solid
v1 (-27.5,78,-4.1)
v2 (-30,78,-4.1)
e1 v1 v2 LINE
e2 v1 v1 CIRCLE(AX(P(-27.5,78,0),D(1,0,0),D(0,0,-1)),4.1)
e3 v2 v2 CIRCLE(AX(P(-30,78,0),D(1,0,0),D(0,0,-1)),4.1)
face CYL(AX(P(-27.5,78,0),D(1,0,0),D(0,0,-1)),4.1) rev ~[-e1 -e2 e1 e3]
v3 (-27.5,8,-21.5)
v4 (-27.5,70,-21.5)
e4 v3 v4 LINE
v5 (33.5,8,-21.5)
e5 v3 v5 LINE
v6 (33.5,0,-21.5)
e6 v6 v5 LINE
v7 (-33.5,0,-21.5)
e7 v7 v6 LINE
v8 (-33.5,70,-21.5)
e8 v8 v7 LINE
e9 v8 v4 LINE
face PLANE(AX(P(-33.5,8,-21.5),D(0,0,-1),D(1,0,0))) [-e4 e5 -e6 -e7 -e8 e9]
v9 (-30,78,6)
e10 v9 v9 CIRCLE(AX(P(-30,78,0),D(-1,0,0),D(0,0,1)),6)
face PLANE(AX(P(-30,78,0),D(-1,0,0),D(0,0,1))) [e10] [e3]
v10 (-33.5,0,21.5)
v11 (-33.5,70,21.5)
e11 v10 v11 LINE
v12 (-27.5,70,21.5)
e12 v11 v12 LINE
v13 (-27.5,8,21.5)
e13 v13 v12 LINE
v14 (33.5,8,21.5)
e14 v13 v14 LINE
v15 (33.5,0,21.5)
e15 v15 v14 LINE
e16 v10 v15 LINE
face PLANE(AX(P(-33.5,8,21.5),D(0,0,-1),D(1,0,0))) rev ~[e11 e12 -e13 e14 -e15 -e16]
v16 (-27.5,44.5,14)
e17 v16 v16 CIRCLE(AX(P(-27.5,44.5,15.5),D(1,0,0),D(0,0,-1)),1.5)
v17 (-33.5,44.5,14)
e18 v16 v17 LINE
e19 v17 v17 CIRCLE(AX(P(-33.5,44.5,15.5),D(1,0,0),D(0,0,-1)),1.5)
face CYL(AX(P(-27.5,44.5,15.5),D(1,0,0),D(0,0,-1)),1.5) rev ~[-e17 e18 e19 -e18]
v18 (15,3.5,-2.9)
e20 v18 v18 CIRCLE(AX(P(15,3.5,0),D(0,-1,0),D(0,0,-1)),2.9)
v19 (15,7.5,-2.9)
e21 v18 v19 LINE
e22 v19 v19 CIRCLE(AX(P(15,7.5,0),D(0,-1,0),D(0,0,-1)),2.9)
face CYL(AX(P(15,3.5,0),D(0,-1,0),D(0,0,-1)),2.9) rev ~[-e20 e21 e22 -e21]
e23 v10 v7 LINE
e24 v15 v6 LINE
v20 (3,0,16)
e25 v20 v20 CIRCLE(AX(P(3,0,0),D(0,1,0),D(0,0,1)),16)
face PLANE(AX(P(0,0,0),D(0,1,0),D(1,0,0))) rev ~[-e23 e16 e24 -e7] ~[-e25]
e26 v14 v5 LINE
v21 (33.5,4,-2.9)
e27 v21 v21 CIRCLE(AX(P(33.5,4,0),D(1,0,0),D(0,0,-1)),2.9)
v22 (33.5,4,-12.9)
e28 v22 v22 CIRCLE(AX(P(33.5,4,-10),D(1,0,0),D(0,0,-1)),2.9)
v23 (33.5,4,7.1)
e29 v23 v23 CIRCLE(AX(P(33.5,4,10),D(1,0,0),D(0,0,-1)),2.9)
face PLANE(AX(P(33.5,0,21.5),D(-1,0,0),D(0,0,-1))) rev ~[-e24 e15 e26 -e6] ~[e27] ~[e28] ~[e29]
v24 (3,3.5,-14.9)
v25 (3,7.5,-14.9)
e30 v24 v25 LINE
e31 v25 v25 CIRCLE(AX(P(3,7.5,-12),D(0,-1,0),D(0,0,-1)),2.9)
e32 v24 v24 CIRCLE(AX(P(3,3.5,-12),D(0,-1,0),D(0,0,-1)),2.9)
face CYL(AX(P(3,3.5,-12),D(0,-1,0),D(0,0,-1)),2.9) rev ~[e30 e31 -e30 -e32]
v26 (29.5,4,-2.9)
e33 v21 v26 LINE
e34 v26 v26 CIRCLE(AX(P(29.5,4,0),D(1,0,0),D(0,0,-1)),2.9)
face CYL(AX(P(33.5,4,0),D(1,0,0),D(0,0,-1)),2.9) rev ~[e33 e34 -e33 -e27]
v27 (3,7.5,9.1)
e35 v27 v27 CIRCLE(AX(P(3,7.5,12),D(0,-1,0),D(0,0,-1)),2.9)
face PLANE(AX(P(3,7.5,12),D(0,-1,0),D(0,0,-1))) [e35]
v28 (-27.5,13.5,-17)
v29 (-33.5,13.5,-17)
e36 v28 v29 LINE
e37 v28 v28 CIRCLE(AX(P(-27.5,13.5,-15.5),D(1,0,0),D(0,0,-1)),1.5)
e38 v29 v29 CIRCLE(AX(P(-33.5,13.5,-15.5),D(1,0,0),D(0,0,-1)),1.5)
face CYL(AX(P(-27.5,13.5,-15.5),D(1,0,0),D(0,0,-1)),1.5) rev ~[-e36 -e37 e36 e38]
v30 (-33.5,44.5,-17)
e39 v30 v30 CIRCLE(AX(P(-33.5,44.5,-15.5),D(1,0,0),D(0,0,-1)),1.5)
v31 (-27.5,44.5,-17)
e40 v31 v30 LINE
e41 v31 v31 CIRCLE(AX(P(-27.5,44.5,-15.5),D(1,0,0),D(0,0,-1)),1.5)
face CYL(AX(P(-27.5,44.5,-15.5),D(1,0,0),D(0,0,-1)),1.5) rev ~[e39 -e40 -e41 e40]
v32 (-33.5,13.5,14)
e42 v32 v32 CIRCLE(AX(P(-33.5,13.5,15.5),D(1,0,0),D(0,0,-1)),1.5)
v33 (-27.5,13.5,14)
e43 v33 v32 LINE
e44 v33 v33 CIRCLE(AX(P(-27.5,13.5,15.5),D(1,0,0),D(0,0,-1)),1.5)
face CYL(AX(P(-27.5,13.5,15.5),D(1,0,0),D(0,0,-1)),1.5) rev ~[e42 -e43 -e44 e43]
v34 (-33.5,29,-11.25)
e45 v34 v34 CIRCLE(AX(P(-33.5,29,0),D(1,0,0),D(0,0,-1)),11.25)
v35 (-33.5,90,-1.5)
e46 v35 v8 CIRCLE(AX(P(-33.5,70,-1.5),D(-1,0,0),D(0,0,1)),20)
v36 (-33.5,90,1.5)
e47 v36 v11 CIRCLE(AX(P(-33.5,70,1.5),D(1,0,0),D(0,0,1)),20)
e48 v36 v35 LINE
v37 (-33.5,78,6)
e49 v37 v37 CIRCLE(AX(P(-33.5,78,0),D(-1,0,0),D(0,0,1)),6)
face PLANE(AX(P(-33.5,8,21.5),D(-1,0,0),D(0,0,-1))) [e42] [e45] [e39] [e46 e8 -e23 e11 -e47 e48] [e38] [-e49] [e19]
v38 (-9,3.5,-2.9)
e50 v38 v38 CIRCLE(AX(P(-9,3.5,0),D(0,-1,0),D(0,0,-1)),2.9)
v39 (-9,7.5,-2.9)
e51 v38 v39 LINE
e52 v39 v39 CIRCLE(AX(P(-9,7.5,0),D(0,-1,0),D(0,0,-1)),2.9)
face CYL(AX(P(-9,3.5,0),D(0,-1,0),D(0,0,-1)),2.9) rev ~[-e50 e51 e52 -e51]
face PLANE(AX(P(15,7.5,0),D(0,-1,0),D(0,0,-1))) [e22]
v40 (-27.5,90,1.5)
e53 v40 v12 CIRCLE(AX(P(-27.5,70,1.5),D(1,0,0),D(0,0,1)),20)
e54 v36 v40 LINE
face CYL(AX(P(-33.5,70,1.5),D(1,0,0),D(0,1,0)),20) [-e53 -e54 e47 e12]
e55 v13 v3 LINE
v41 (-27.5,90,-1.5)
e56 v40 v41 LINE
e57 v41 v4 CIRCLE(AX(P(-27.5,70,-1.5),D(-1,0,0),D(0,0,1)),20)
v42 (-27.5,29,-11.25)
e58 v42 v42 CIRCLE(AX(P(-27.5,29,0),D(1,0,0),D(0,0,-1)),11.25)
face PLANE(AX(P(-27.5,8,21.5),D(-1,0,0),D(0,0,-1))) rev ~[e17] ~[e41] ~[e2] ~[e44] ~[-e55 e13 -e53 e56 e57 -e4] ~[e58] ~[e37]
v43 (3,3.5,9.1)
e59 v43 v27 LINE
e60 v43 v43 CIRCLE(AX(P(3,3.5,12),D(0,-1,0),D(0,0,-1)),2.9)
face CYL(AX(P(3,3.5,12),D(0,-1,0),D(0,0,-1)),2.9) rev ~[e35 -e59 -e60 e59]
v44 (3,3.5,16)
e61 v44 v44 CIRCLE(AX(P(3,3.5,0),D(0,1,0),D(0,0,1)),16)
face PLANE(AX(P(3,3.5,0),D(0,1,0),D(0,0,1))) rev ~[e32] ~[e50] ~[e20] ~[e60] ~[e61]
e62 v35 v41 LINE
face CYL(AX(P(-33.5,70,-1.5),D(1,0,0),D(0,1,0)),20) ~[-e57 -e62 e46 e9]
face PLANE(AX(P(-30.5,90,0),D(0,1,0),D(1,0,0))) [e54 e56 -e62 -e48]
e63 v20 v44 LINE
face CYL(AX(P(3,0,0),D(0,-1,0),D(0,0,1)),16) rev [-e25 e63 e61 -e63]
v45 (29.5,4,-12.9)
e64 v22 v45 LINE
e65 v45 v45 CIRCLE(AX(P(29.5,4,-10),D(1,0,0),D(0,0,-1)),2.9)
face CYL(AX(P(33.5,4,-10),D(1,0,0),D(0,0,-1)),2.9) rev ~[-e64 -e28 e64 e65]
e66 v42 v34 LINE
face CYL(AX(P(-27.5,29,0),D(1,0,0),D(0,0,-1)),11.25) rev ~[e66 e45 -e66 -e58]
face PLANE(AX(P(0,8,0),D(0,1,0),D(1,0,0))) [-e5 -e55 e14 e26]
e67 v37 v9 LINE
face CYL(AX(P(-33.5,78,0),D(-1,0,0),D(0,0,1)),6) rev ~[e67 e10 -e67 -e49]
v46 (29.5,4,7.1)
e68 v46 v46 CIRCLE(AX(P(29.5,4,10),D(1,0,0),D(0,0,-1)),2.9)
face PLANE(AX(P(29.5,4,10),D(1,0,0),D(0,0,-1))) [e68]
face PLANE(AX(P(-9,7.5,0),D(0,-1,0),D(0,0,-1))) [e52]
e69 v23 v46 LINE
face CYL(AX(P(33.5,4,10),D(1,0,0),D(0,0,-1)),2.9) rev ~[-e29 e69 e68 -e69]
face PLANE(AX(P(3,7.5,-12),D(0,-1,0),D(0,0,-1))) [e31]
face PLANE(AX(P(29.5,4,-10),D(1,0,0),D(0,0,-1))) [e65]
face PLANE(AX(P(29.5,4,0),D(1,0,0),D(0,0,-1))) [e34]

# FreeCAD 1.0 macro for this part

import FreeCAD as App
import Part
import Sketcher

V = App.Vector


def edges_at(feature, points):
    """Names of the edges that pass closest to the given points."""
    edges = feature.Shape.Edges
    near = lambda p: min(range(len(edges)), key=lambda i: edges[i].distToShape(Part.Vertex(*p))[0])
    return sorted({f"Edge{near(p) + 1}" for p in points})


def add_polygon(sketch, points):
    """Adds a closed chain of lines whose ends are joined by coincident constraints."""
    first, n = sketch.GeometryCount, len(points)
    for a, b in zip(points, points[1:] + points[:1]):
        sketch.addGeometry(Part.LineSegment(App.Vector(*a, 0), App.Vector(*b, 0)), False)
    for i in range(n):
        sketch.addConstraint(Sketcher.Constraint("Coincident", first + i, 2, first + (i + 1) % n, 1))

doc = App.newDocument("Part")
params = doc.addObject("Spreadsheet::Sheet", "Params")
for row, (alias, value) in enumerate([
    ("sketch1_width", "67 mm"),
    ("sketch1_height", "43 mm"),
    ("pad1_length", "8 mm"),
    ("sketch2_width", "6 mm"),
    ("sketch2_height", "43 mm"),
    ("pad2_length", "82 mm"),
    ("sketch3_diameter", "22.5 mm"),
    ("sketch4_diameter", "3 mm"),
    ("sketch5_diameter", "3 mm"),
    ("sketch6_diameter", "3 mm"),
    ("sketch7_diameter", "3 mm"),
    ("sketch8_diameter", "8.2 mm"),
    ("fillet_radius", "20 mm"),
    ("sketch9_diameter", "5.8 mm"),
    ("pocket7_length", "4 mm"),
    ("sketch10_diameter", "12 mm"),
    ("pocket8_length", "3.5 mm"),
    ("sketch11_diameter", "32 mm"),
    ("pocket9_length", "3.5 mm"),
    ("sketch12_diameter", "5.8 mm"),
    ("pocket10_length", "4 mm"),
], start=1):
    params.set(f"A{row}", alias)
    params.set(f"B{row}", "=" + value)
    params.setAlias(f"B{row}", alias)

body = doc.addObject("PartDesign::Body", "Body")

sketch1 = doc.addObject("Sketcher::SketchObject", "Sketch")
body.addObject(sketch1)
sketch1.AttachmentSupport = (doc.XZ_Plane, [""])
sketch1.MapMode = "FlatFace"
add_polygon(sketch1, [(-34, -22), (-34, 22), (34, 22), (34, -22)])
sketch1.addConstraint(Sketcher.Constraint("Vertical", 0))
sketch1.addConstraint(Sketcher.Constraint("Horizontal", 1))
sketch1.addConstraint(Sketcher.Constraint("Vertical", 2))
sketch1.addConstraint(Sketcher.Constraint("Horizontal", 3))
sketch1.addConstraint(Sketcher.Constraint("Symmetric", 0, 2, 2, 2, -1, 1))
sketch1.addConstraint(Sketcher.Constraint("DistanceX", 1, 1, 1, 2, 67.0))
sketch1.addConstraint(Sketcher.Constraint("DistanceY", 0, 1, 0, 2, 43.0))
sketch1.setExpression("Constraints[9]", "Params.sketch1_width")
sketch1.setExpression("Constraints[10]", "Params.sketch1_height")
pad1 = doc.addObject("PartDesign::Pad", "Pad")
body.addObject(pad1)
pad1.Profile = sketch1
pad1.setExpression("Length", "Params.pad1_length")
pad1.Reversed = True

sketch2 = doc.addObject("Sketcher::SketchObject", "Sketch001")
body.addObject(sketch2)
sketch2.AttachmentSupport = (doc.XZ_Plane, [""])
sketch2.MapMode = "FlatFace"
sketch2.AttachmentOffset = App.Placement(V(0, 0, -8), App.Rotation())
add_polygon(sketch2, [(-34, -22), (-34, 22), (-28, 22), (-28, -22)])
sketch2.addConstraint(Sketcher.Constraint("Vertical", 0))
sketch2.addConstraint(Sketcher.Constraint("Horizontal", 1))
sketch2.addConstraint(Sketcher.Constraint("Vertical", 2))
sketch2.addConstraint(Sketcher.Constraint("Horizontal", 3))
sketch2.addConstraint(Sketcher.Constraint("DistanceX", 1, 1, 1, 2, 6.0))
sketch2.addConstraint(Sketcher.Constraint("DistanceY", 0, 1, 0, 2, 43.0))
sketch2.addConstraint(Sketcher.Constraint("DistanceX", 0, 2, -1, 1, 33.5))
sketch2.addConstraint(Sketcher.Constraint("DistanceY", -1, 1, 0, 2, 21.5))
sketch2.setExpression("Constraints[8]", "Params.sketch2_width")
sketch2.setExpression("Constraints[9]", "Params.sketch2_height")
pad2 = doc.addObject("PartDesign::Pad", "Pad001")
body.addObject(pad2)
pad2.Profile = sketch2
pad2.setExpression("Length", "Params.pad2_length")
pad2.Reversed = True

sketch3 = doc.addObject("Sketcher::SketchObject", "Sketch002")
body.addObject(sketch3)
sketch3.AttachmentSupport = (doc.YZ_Plane, [""])
sketch3.MapMode = "FlatFace"
sketch3.AttachmentOffset = App.Placement(V(0, 0, -27.5), App.Rotation())
sketch3.addGeometry(Part.Circle(V(29, 0, 0), V(0, 0, 1), 11), False)
sketch3.addConstraint(Sketcher.Constraint("PointOnObject", 0, 3, -1))
sketch3.addConstraint(Sketcher.Constraint("Diameter", 0, 22.5))
sketch3.addConstraint(Sketcher.Constraint("DistanceX", -1, 1, 0, 3, 29.0))
sketch3.setExpression("Constraints[1]", "Params.sketch3_diameter")
pocket1 = doc.addObject("PartDesign::Pocket", "Pocket")
body.addObject(pocket1)
pocket1.Profile = sketch3
pocket1.Type = "UpToFirst"

sketch4 = doc.addObject("Sketcher::SketchObject", "Sketch003")
body.addObject(sketch4)
sketch4.AttachmentSupport = (doc.YZ_Plane, [""])
sketch4.MapMode = "FlatFace"
sketch4.AttachmentOffset = App.Placement(V(0, 0, -27.5), App.Rotation())
sketch4.addGeometry(Part.Circle(V(44.5, 15.5, 0), V(0, 0, 1), 1.5), False)
sketch4.addConstraint(Sketcher.Constraint("Diameter", 0, 3.0))
sketch4.addConstraint(Sketcher.Constraint("DistanceX", -1, 1, 0, 3, 44.5))
sketch4.addConstraint(Sketcher.Constraint("DistanceY", -1, 1, 0, 3, 15.5))
sketch4.setExpression("Constraints[0]", "Params.sketch4_diameter")
pocket2 = doc.addObject("PartDesign::Pocket", "Pocket001")
body.addObject(pocket2)
pocket2.Profile = sketch4
pocket2.Type = "UpToFirst"

sketch5 = doc.addObject("Sketcher::SketchObject", "Sketch004")
body.addObject(sketch5)
sketch5.AttachmentSupport = (doc.YZ_Plane, [""])
sketch5.MapMode = "FlatFace"
sketch5.AttachmentOffset = App.Placement(V(0, 0, -27.5), App.Rotation())
sketch5.addGeometry(Part.Circle(V(44.5, -15.5, 0), V(0, 0, 1), 1.5), False)
sketch5.addConstraint(Sketcher.Constraint("Diameter", 0, 3.0))
sketch5.addConstraint(Sketcher.Constraint("DistanceX", -1, 1, 0, 3, 44.5))
sketch5.addConstraint(Sketcher.Constraint("DistanceY", 0, 3, -1, 1, 15.5))
sketch5.setExpression("Constraints[0]", "Params.sketch5_diameter")
pocket3 = doc.addObject("PartDesign::Pocket", "Pocket002")
body.addObject(pocket3)
pocket3.Profile = sketch5
pocket3.Type = "UpToFirst"

sketch6 = doc.addObject("Sketcher::SketchObject", "Sketch005")
body.addObject(sketch6)
sketch6.AttachmentSupport = (doc.YZ_Plane, [""])
sketch6.MapMode = "FlatFace"
sketch6.AttachmentOffset = App.Placement(V(0, 0, -27.5), App.Rotation())
sketch6.addGeometry(Part.Circle(V(13.5, -15.5, 0), V(0, 0, 1), 1.5), False)
sketch6.addConstraint(Sketcher.Constraint("Diameter", 0, 3.0))
sketch6.addConstraint(Sketcher.Constraint("DistanceX", -1, 1, 0, 3, 13.5))
sketch6.addConstraint(Sketcher.Constraint("DistanceY", 0, 3, -1, 1, 15.5))
sketch6.setExpression("Constraints[0]", "Params.sketch6_diameter")
pocket4 = doc.addObject("PartDesign::Pocket", "Pocket003")
body.addObject(pocket4)
pocket4.Profile = sketch6
pocket4.Type = "UpToFirst"

sketch7 = doc.addObject("Sketcher::SketchObject", "Sketch006")
body.addObject(sketch7)
sketch7.AttachmentSupport = (doc.YZ_Plane, [""])
sketch7.MapMode = "FlatFace"
sketch7.AttachmentOffset = App.Placement(V(0, 0, -27.5), App.Rotation())
sketch7.addGeometry(Part.Circle(V(13.5, 15.5, 0), V(0, 0, 1), 1.5), False)
sketch7.addConstraint(Sketcher.Constraint("Diameter", 0, 3.0))
sketch7.addConstraint(Sketcher.Constraint("DistanceX", -1, 1, 0, 3, 13.5))
sketch7.addConstraint(Sketcher.Constraint("DistanceY", -1, 1, 0, 3, 15.5))
sketch7.setExpression("Constraints[0]", "Params.sketch7_diameter")
pocket5 = doc.addObject("PartDesign::Pocket", "Pocket004")
body.addObject(pocket5)
pocket5.Profile = sketch7
pocket5.Type = "UpToFirst"

sketch8 = doc.addObject("Sketcher::SketchObject", "Sketch007")
body.addObject(sketch8)
sketch8.AttachmentSupport = (doc.YZ_Plane, [""])
sketch8.MapMode = "FlatFace"
sketch8.AttachmentOffset = App.Placement(V(0, 0, -27.5), App.Rotation())
sketch8.addGeometry(Part.Circle(V(78, 0, 0), V(0, 0, 1), 4.1), False)
sketch8.addConstraint(Sketcher.Constraint("PointOnObject", 0, 3, -1))
sketch8.addConstraint(Sketcher.Constraint("Diameter", 0, 8.2))
sketch8.addConstraint(Sketcher.Constraint("DistanceX", -1, 1, 0, 3, 78.0))
sketch8.setExpression("Constraints[1]", "Params.sketch8_diameter")
pocket6 = doc.addObject("PartDesign::Pocket", "Pocket005")
body.addObject(pocket6)
pocket6.Profile = sketch8
pocket6.Type = "UpToFirst"
doc.recompute()

fillet = doc.addObject("PartDesign::Fillet", "Fillet")
body.addObject(fillet)
fillet.Base = (pocket6, edges_at(pocket6, [(-30.5, 90, -21.5), (-30.5, 90, 21.5)]))
fillet.setExpression("Radius", "Params.fillet_radius")

sketch9 = doc.addObject("Sketcher::SketchObject", "Sketch008")
body.addObject(sketch9)
sketch9.AttachmentSupport = (doc.YZ_Plane, [""])
sketch9.MapMode = "FlatFace"
sketch9.AttachmentOffset = App.Placement(V(0, 0, 33.5), App.Rotation())
sketch9.addGeometry(Part.Circle(V(4, 0, 0), V(0, 0, 1), 2.9), False)
sketch9.addGeometry(Part.Circle(V(4, -10, 0), V(0, 0, 1), 2.9), False)
sketch9.addGeometry(Part.Circle(V(4, 10, 0), V(0, 0, 1), 2.9), False)
sketch9.addConstraint(Sketcher.Constraint("Equal", 0, 1))
sketch9.addConstraint(Sketcher.Constraint("Equal", 1, 2))
sketch9.addConstraint(Sketcher.Constraint("Symmetric", 1, 3, 2, 3, -1))
sketch9.addConstraint(Sketcher.Constraint("PointOnObject", 0, 3, -1))
sketch9.addConstraint(Sketcher.Constraint("Vertical", 0, 3, 1, 3))
sketch9.addConstraint(Sketcher.Constraint("Diameter", 0, 5.8))
sketch9.addConstraint(Sketcher.Constraint("DistanceX", -1, 1, 0, 3, 4.0))
sketch9.addConstraint(Sketcher.Constraint("DistanceY", 1, 3, -1, 1, 10.0))
sketch9.setExpression("Constraints[5]", "Params.sketch9_diameter")
pocket7 = doc.addObject("PartDesign::Pocket", "Pocket006")
body.addObject(pocket7)
pocket7.Profile = sketch9
pocket7.setExpression("Length", "Params.pocket7_length")

sketch10 = doc.addObject("Sketcher::SketchObject", "Sketch009")
body.addObject(sketch10)
sketch10.AttachmentSupport = (doc.YZ_Plane, [""])
sketch10.MapMode = "FlatFace"
sketch10.AttachmentOffset = App.Placement(V(0, 0, -33.5), App.Rotation())
sketch10.addGeometry(Part.Circle(V(78, 0, 0), V(0, 0, 1), 6), False)
sketch10.addConstraint(Sketcher.Constraint("PointOnObject", 0, 3, -1))
sketch10.addConstraint(Sketcher.Constraint("Diameter", 0, 12.0))
sketch10.addConstraint(Sketcher.Constraint("DistanceX", -1, 1, 0, 3, 78.0))
sketch10.setExpression("Constraints[1]", "Params.sketch10_diameter")
pocket8 = doc.addObject("PartDesign::Pocket", "Pocket007")
body.addObject(pocket8)
pocket8.Profile = sketch10
pocket8.setExpression("Length", "Params.pocket8_length")
pocket8.Reversed = True

sketch11 = doc.addObject("Sketcher::SketchObject", "Sketch010")
body.addObject(sketch11)
sketch11.AttachmentSupport = (doc.XZ_Plane, [""])
sketch11.MapMode = "FlatFace"
sketch11.addGeometry(Part.Circle(V(3, 0, 0), V(0, 0, 1), 16), False)
sketch11.addConstraint(Sketcher.Constraint("PointOnObject", 0, 3, -1))
sketch11.addConstraint(Sketcher.Constraint("Diameter", 0, 32.0))
sketch11.addConstraint(Sketcher.Constraint("DistanceX", -1, 1, 0, 3, 3.0))
sketch11.setExpression("Constraints[1]", "Params.sketch11_diameter")
pocket9 = doc.addObject("PartDesign::Pocket", "Pocket008")
body.addObject(pocket9)
pocket9.Profile = sketch11
pocket9.setExpression("Length", "Params.pocket9_length")

sketch12 = doc.addObject("Sketcher::SketchObject", "Sketch011")
body.addObject(sketch12)
sketch12.AttachmentSupport = (doc.XZ_Plane, [""])
sketch12.MapMode = "FlatFace"
sketch12.AttachmentOffset = App.Placement(V(0, 0, -3.5), App.Rotation())
sketch12.addGeometry(Part.Circle(V(3, 12, 0), V(0, 0, 1), 2.9), False)
sketch12.addGeometry(Part.Circle(V(15, 0, 0), V(0, 0, 1), 2.9), False)
sketch12.addGeometry(Part.Circle(V(3, -12, 0), V(0, 0, 1), 2.9), False)
sketch12.addGeometry(Part.Circle(V(-9, 0, 0), V(0, 0, 1), 2.9), False)
sketch12.addConstraint(Sketcher.Constraint("Equal", 0, 1))
sketch12.addConstraint(Sketcher.Constraint("Equal", 1, 2))
sketch12.addConstraint(Sketcher.Constraint("Equal", 2, 3))
sketch12.addConstraint(Sketcher.Constraint("Symmetric", 0, 3, 2, 3, -1))
sketch12.addConstraint(Sketcher.Constraint("PointOnObject", 1, 3, -1))
sketch12.addConstraint(Sketcher.Constraint("PointOnObject", 3, 3, -1))
sketch12.addConstraint(Sketcher.Constraint("Diameter", 0, 5.8))
sketch12.addConstraint(Sketcher.Constraint("DistanceX", -1, 1, 0, 3, 3.0))
sketch12.addConstraint(Sketcher.Constraint("DistanceY", -1, 1, 0, 3, 12.0))
sketch12.addConstraint(Sketcher.Constraint("DistanceX", -1, 1, 1, 3, 15.0))
sketch12.addConstraint(Sketcher.Constraint("DistanceX", 3, 3, -1, 1, 9.0))
sketch12.setExpression("Constraints[6]", "Params.sketch12_diameter")
pocket10 = doc.addObject("PartDesign::Pocket", "Pocket009")
body.addObject(pocket10)
pocket10.Profile = sketch12
pocket10.setExpression("Length", "Params.pocket10_length")

doc.recompute()
